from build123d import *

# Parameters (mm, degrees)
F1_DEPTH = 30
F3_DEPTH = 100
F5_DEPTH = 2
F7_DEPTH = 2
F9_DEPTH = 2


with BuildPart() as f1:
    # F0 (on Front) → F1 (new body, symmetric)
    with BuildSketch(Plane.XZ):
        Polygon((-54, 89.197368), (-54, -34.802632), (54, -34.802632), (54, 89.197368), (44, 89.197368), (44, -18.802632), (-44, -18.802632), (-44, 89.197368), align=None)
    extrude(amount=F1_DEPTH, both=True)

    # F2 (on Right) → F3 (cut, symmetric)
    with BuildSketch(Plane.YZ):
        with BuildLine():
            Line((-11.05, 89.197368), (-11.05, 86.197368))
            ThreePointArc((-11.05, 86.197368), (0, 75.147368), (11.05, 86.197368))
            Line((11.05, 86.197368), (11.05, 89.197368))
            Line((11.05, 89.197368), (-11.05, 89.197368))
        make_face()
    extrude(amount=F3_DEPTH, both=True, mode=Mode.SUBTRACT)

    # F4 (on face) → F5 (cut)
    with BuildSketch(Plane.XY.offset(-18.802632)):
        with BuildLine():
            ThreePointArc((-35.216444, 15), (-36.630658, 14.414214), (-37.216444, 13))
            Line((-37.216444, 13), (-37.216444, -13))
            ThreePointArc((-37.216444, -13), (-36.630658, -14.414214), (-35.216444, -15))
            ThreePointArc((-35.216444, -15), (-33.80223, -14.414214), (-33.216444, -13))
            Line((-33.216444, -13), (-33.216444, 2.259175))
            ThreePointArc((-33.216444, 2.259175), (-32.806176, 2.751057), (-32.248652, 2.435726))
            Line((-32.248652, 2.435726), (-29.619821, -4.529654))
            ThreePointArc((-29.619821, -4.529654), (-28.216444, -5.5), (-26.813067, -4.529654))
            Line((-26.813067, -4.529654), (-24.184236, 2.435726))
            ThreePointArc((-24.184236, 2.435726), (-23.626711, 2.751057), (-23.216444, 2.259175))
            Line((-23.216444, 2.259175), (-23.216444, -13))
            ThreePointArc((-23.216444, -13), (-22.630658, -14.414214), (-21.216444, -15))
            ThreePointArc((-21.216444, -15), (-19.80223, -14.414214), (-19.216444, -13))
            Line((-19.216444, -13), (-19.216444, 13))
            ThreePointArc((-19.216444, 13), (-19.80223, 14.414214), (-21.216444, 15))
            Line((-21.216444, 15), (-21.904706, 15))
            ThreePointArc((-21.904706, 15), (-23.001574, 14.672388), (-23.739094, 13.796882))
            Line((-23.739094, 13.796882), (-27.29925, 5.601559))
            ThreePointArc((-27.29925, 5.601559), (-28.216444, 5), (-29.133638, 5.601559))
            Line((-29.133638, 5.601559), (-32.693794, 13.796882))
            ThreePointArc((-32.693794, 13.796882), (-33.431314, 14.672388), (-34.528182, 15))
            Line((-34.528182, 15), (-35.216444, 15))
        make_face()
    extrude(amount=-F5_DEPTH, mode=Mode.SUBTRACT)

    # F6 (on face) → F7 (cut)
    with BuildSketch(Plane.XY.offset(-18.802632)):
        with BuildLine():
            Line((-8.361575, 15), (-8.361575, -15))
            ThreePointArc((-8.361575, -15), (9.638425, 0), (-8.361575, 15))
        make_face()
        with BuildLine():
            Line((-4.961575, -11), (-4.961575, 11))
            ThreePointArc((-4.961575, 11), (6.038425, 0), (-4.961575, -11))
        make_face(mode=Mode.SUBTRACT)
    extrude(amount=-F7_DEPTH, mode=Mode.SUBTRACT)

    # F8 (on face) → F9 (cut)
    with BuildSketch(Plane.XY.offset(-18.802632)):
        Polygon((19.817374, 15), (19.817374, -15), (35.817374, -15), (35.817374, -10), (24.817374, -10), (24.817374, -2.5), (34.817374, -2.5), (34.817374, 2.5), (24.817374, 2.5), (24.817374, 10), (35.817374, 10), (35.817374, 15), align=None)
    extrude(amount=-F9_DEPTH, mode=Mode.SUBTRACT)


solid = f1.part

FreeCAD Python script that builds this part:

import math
import FreeCAD as App
import Part
import Sketcher
from FreeCAD import Vector
Q = App.Units.Quantity


def add_polygon(sketch, points):
    """Adds a closed chain of lines whose ends are joined by coincident constraints."""
    first, n = sketch.GeometryCount, len(points)
    for a, b in zip(points, points[1:] + points[:1]):
        sketch.addGeometry(Part.LineSegment(App.Vector(*a, 0), App.Vector(*b, 0)), False)
    for i in range(n):
        sketch.addConstraint(Sketcher.Constraint("Coincident", first + i, 2, first + (i + 1) % n, 1))

doc = App.newDocument("Part")
body = doc.addObject("PartDesign::Body", "Body")

# Sketch on XZ plane
sketch1 = body.newObject("Sketcher::SketchObject", "Sketch")
sketch1.AttachmentSupport = (doc.getObject("XZ_Plane"), [""])
sketch1.MapMode = "FlatFace"
add_polygon(sketch1, [(-54, 89), (-54, -35), (54, -35), (54, 89), (44, 89), (44, -19), (-44, -19), (-44, 89)])  # lines 0-7
sketch1.addConstraint([
    Sketcher.Constraint("Vertical", 0),
    Sketcher.Constraint("Horizontal", 1),
    Sketcher.Constraint("Vertical", 2),
    Sketcher.Constraint("Horizontal", 3),
    Sketcher.Constraint("Vertical", 4),
    Sketcher.Constraint("Horizontal", 5),
    Sketcher.Constraint("Vertical", 6),
    Sketcher.Constraint("Horizontal", 7),
    Sketcher.Constraint("Symmetric", 3, 2, 6, 2, -2),
    Sketcher.Constraint("Equal", 3, 7),
    Sketcher.Constraint("Equal", 1, 4),
    Sketcher.Constraint("DistanceX", 1, 1, 1, 2, Q("108 mm")),
    Sketcher.Constraint("DistanceX", 3, 2, 3, 1, Q("10 mm")),
    Sketcher.Constraint("DistanceY", 0, 2, 0, 1, Q("124 mm")),
    Sketcher.Constraint("DistanceY", 4, 2, -1, 1, Q("18.802632 mm")),
])
pad1 = body.newObject("PartDesign::Pad", "Pad")
pad1.Profile = sketch1
pad1.Length = 60
pad1.Midplane = True

# Sketch on YZ plane
sketch2 = body.newObject("Sketcher::SketchObject", "Sketch001")
sketch2.AttachmentSupport = (doc.getObject("YZ_Plane"), [""])
sketch2.MapMode = "FlatFace"
sketch2.addGeometry([
    Part.LineSegment(Vector(-11.1, 89.2, 0), Vector(-11.1, 86.2, 0)),
    Part.ArcOfCircle(Part.Circle(Vector(0, 86.2, 0), Vector(0, 0, 1), 11.1), math.radians(180), math.radians(360)),
    Part.LineSegment(Vector(11.1, 86.2, 0), Vector(11.1, 89.2, 0)),
    Part.LineSegment(Vector(11.1, 89.2, 0), Vector(-11.1, 89.2, 0)),
], False)
sketch2.addConstraint([
    Sketcher.Constraint("Tangent", 0, 2, 1, 1),
    Sketcher.Constraint("Tangent", 1, 2, 2, 1),
    Sketcher.Constraint("Coincident", 2, 2, 3, 1),
    Sketcher.Constraint("Coincident", 3, 2, 0, 1),
    Sketcher.Constraint("Vertical", 0),
    Sketcher.Constraint("Vertical", 2),
    Sketcher.Constraint("Horizontal", 3),
    Sketcher.Constraint("PointOnObject", 1, 3, -2),
    Sketcher.Constraint("DistanceY", 0, 2, 0, 1, Q("3 mm")),
    Sketcher.Constraint("Radius", 1, Q("11.05 mm")),
    Sketcher.Constraint("DistanceY", -1, 1, 1, 3, Q("86.197368 mm")),
])
pocket1 = body.newObject("PartDesign::Pocket", "Pocket")
pocket1.Profile = sketch2
pocket1.Length = 200
pocket1.Midplane = True

# Sketch on XY plane
sketch3 = body.newObject("Sketcher::SketchObject", "Sketch002")
sketch3.AttachmentSupport = (doc.getObject("XY_Plane"), [""])
sketch3.MapMode = "FlatFace"
sketch3.AttachmentOffset = App.Placement(Vector(0, 0, -18.802632), App.Rotation())
sketch3.addGeometry([
    Part.ArcOfCircle(Part.Circle(Vector(-35.22, 13, 0), Vector(0, 0, 1), 2), math.radians(90), math.radians(180)),  # 0
    Part.LineSegment(Vector(-37.22, 13, 0), Vector(-37.22, -13, 0)),  # 1
    Part.ArcOfCircle(Part.Circle(Vector(-35.22, -13, 0), Vector(0, 0, 1), 2), math.radians(180), math.radians(270)),  # 2
    Part.ArcOfCircle(Part.Circle(Vector(-35.22, -13, 0), Vector(0, 0, 1), 2), math.radians(-90), math.radians(0)),  # 3
    Part.LineSegment(Vector(-33.22, -13, 0), Vector(-33.22, 2.26, 0)),  # 4
    Part.ArcOfCircle(Part.Circle(Vector(-32.72, 2.26, 0), Vector(0, 0, 1), 0.5), math.radians(21), math.radians(180)),  # 5
    Part.LineSegment(Vector(-32.25, 2.44, 0), Vector(-29.62, -4.53, 0)),  # 6
    Part.ArcOfCircle(Part.Circle(Vector(-28.22, -4, 0), Vector(0, 0, 1), 1.5), math.radians(-159), math.radians(-21)),  # 7
    Part.LineSegment(Vector(-26.81, -4.53, 0), Vector(-24.18, 2.44, 0)),  # 8
    Part.ArcOfCircle(Part.Circle(Vector(-23.72, 2.26, 0), Vector(0, 0, 1), 0.5), math.radians(0), math.radians(159)),  # 9
    Part.LineSegment(Vector(-23.22, 2.26, 0), Vector(-23.22, -13, 0)),  # 10
    Part.ArcOfCircle(Part.Circle(Vector(-21.22, -13, 0), Vector(0, 0, 1), 2), math.radians(180), math.radians(270)),  # 11
    Part.ArcOfCircle(Part.Circle(Vector(-21.22, -13, 0), Vector(0, 0, 1), 2), math.radians(-90), math.radians(0)),  # 12
    Part.LineSegment(Vector(-19.22, -13, 0), Vector(-19.22, 13, 0)),  # 13
    Part.ArcOfCircle(Part.Circle(Vector(-21.22, 13, 0), Vector(0, 0, 1), 2), math.radians(0), math.radians(90)),  # 14
    Part.LineSegment(Vector(-21.22, 15, 0), Vector(-21.9, 15, 0)),  # 15
    Part.ArcOfCircle(Part.Circle(Vector(-21.9, 13, 0), Vector(0, 0, 1), 2), math.radians(90), math.radians(157)),  # 16
    Part.LineSegment(Vector(-23.74, 13.8, 0), Vector(-27.3, 5.6, 0)),  # 17
    Part.ArcOfCircle(Part.Circle(Vector(-28.22, 6, 0), Vector(0, 0, 1), 1), math.radians(-157), math.radians(-23)),  # 18
    Part.LineSegment(Vector(-29.13, 5.6, 0), Vector(-32.69, 13.8, 0)),  # 19
    Part.ArcOfCircle(Part.Circle(Vector(-34.53, 13, 0), Vector(0, 0, 1), 2), math.radians(23), math.radians(90)),  # 20
    Part.LineSegment(Vector(-34.53, 15, 0), Vector(-35.22, 15, 0)),  # 21
], False)
sketch3.addConstraint([
    Sketcher.Constraint("Tangent", 0, 2, 1, 1),
    Sketcher.Constraint("Tangent", 1, 2, 2, 1),
    Sketcher.Constraint("Tangent", 2, 2, 3, 1),
    Sketcher.Constraint("Tangent", 3, 2, 4, 1),
    Sketcher.Constraint("Tangent", 4, 2, 5, 2),
    Sketcher.Constraint("Tangent", 5, 1, 6, 1),
    Sketcher.Constraint("Tangent", 6, 2, 7, 1),
    Sketcher.Constraint("Tangent", 7, 2, 8, 1),
    Sketcher.Constraint("Tangent", 8, 2, 9, 2),
    Sketcher.Constraint("Tangent", 9, 1, 10, 1),
    Sketcher.Constraint("Tangent", 10, 2, 11, 1),
    Sketcher.Constraint("Tangent", 11, 2, 12, 1),
    Sketcher.Constraint("Tangent", 12, 2, 13, 1),
    Sketcher.Constraint("Tangent", 13, 2, 14, 1),
    Sketcher.Constraint("Tangent", 14, 2, 15, 1),
    Sketcher.Constraint("Tangent", 15, 2, 16, 1),
    Sketcher.Constraint("Tangent", 16, 2, 17, 1),
    Sketcher.Constraint("Tangent", 17, 2, 18, 2),
    Sketcher.Constraint("Tangent", 18, 1, 19, 1),
    Sketcher.Constraint("Tangent", 19, 2, 20, 1),
    Sketcher.Constraint("Tangent", 20, 2, 21, 1),
    Sketcher.Constraint("Tangent", 21, 2, 0, 1),
    Sketcher.Constraint("Vertical", 1),
    Sketcher.Constraint("Vertical", 4),
    Sketcher.Constraint("Vertical", 10),
    Sketcher.Constraint("Vertical", 13),
    Sketcher.Constraint("Horizontal", 15),
    Sketcher.Constraint("Horizontal", 21),
    Sketcher.Constraint("Equal", 0, 2),
    Sketcher.Constraint("Equal", 2, 3),
    Sketcher.Constraint("Equal", 5, 9),
    Sketcher.Constraint("Equal", 3, 11),
    Sketcher.Constraint("Equal", 11, 12),
    Sketcher.Constraint("Equal", 12, 14),
    Sketcher.Constraint("Equal", 14, 16),
    Sketcher.Constraint("Equal", 16, 20),
    Sketcher.Constraint("Symmetric", 11, 2, 14, 2, -1),
    Sketcher.Constraint("Symmetric", 2, 2, 21, 2, -1),
    Sketcher.Constraint("Horizontal", 5, 3, 9, 3),
    Sketcher.Constraint("Horizontal", 3, 3, 11, 3),
    Sketcher.Constraint("Horizontal", 6, 2, 7, 2),
    Sketcher.Constraint("Horizontal", 17, 2, 18, 1),
    Sketcher.Constraint("Vertical", 7, 3, 18, 3),
    Sketcher.Constraint("Radius", 0, Q("1.999999 mm")),
    Sketcher.Constraint("Radius", 18, Q("1 mm")),
    Sketcher.Constraint("Radius", 5, Q("0.5 mm")),
    Sketcher.Constraint("Radius", 7, Q("1.5 mm")),
    Sketcher.Constraint("DistanceY", 1, 2, 1, 1, Q("26 mm")),
    Sketcher.Constraint("DistanceY", 7, 3, -1, 1, Q("4 mm")),
    Sketcher.Constraint("DistanceY", -1, 1, 18, 3, Q("6 mm")),
    Sketcher.Constraint("DistanceX", 3, 3, 7, 3, Q("6.999999 mm")),
    Sketcher.Constraint("DistanceX", 19, 2, 16, 2, Q("8.9547 mm")),
    Sketcher.Constraint("Distance", 6, Q("7.444949 mm")),
    Sketcher.Constraint("DistanceX", 20, 3, -1, 1, Q("34.528181 mm")),
])
pocket2 = body.newObject("PartDesign::Pocket", "Pocket001")
pocket2.Profile = sketch3
pocket2.Length = 2

# Sketch on XY plane
sketch4 = body.newObject("Sketcher::SketchObject", "Sketch003")
sketch4.AttachmentSupport = (doc.getObject("XY_Plane"), [""])
sketch4.MapMode = "FlatFace"
sketch4.AttachmentOffset = App.Placement(Vector(0, 0, -18.802632), App.Rotation())
sketch4.addGeometry([
    Part.LineSegment(Vector(-8, 15, 0), Vector(-8, -15, 0)),
    Part.ArcOfCircle(Part.Circle(Vector(-6, 0, 0), Vector(0, 0, 1), 15), math.radians(-100), math.radians(100)),
    Part.ArcOfCircle(Part.Circle(Vector(-5, 0, 0), Vector(0, 0, 1), 11), math.radians(-90), math.radians(90)),
    Part.LineSegment(Vector(-5, -11, 0), Vector(-5, 11, 0)),
], False)
sketch4.addConstraint([
    Sketcher.Constraint("Coincident", 0, 1, 1, 2),
    Sketcher.Constraint("Coincident", 1, 1, 0, 2),
    Sketcher.Constraint("Coincident", 2, 1, 3, 1),
    Sketcher.Constraint("Coincident", 3, 2, 2, 2),
    Sketcher.Constraint("Vertical", 0),
    Sketcher.Constraint("Vertical", 3),
    Sketcher.Constraint("PointOnObject", 1, 3, -1),
    Sketcher.Constraint("PointOnObject", 2, 3, -1),
    Sketcher.Constraint("Radius", 2, Q("11 mm")),
    Sketcher.Constraint("DistanceY", 0, 2, 0, 1, Q("30 mm")),
    Sketcher.Constraint("Radius", 1, Q("15.25 mm")),
    Sketcher.Constraint("DistanceX", 0, 1, 2, 3, Q("3.4 mm")),
    Sketcher.Constraint("DistanceX", 1, 1, 2, 1, Q("3.4 mm")),
    Sketcher.Constraint("DistanceX", 1, 3, -1, 1, Q("5.611575 mm")),
])
pocket3 = body.newObject("PartDesign::Pocket", "Pocket002")
pocket3.Profile = sketch4
pocket3.Length = 2

# Sketch on XY plane
sketch5 = body.newObject("Sketcher::SketchObject", "Sketch004")
sketch5.AttachmentSupport = (doc.getObject("XY_Plane"), [""])
sketch5.MapMode = "FlatFace"
sketch5.AttachmentOffset = App.Placement(Vector(0, 0, -18.802632), App.Rotation())
add_polygon(sketch5, [(20, 15), (20, -15), (36, -15), (36, -10), (25, -10), (25, -2), (35, -2), (35, 2), (25, 2), (25, 10), (36, 10), (36, 15)])  # lines 0-11
sketch5.addConstraint([
    Sketcher.Constraint("Vertical", 0),
    Sketcher.Constraint("Horizontal", 1),
    Sketcher.Constraint("Vertical", 2),
    Sketcher.Constraint("Horizontal", 3),
    Sketcher.Constraint("Vertical", 4),
    Sketcher.Constraint("Horizontal", 5),
    Sketcher.Constraint("Vertical", 6),
    Sketcher.Constraint("Horizontal", 7),
    Sketcher.Constraint("Vertical", 8),
    Sketcher.Constraint("Horizontal", 9),
    Sketcher.Constraint("Vertical", 10),
    Sketcher.Constraint("Horizontal", 11),
    Sketcher.Constraint("Symmetric", 4, 2, 7, 2, -1),
    Sketcher.Constraint("Symmetric", 2, 2, 9, 2, -1),
    Sketcher.Constraint("Equal", 2, 6),
    Sketcher.Constraint("Equal", 6, 10),
    Sketcher.Constraint("DistanceX", 1, 1, 1, 2, Q("16 mm")),
    Sketcher.Constraint("DistanceX", 3, 2, 3, 1, Q("11 mm")),
    Sketcher.Constraint("DistanceX", 5, 1, 5, 2, Q("10 mm")),
    Sketcher.Constraint("DistanceY", 0, 2, 0, 1, Q("30 mm")),
    Sketcher.Constraint("DistanceY", 2, 1, 2, 2, Q("5 mm")),
    Sketcher.Constraint("DistanceX", -1, 1, 0, 2, Q("19.817374 mm")),
])
pocket4 = body.newObject("PartDesign::Pocket", "Pocket003")
pocket4.Profile = sketch5
pocket4.Length = 2

doc.recompute()
